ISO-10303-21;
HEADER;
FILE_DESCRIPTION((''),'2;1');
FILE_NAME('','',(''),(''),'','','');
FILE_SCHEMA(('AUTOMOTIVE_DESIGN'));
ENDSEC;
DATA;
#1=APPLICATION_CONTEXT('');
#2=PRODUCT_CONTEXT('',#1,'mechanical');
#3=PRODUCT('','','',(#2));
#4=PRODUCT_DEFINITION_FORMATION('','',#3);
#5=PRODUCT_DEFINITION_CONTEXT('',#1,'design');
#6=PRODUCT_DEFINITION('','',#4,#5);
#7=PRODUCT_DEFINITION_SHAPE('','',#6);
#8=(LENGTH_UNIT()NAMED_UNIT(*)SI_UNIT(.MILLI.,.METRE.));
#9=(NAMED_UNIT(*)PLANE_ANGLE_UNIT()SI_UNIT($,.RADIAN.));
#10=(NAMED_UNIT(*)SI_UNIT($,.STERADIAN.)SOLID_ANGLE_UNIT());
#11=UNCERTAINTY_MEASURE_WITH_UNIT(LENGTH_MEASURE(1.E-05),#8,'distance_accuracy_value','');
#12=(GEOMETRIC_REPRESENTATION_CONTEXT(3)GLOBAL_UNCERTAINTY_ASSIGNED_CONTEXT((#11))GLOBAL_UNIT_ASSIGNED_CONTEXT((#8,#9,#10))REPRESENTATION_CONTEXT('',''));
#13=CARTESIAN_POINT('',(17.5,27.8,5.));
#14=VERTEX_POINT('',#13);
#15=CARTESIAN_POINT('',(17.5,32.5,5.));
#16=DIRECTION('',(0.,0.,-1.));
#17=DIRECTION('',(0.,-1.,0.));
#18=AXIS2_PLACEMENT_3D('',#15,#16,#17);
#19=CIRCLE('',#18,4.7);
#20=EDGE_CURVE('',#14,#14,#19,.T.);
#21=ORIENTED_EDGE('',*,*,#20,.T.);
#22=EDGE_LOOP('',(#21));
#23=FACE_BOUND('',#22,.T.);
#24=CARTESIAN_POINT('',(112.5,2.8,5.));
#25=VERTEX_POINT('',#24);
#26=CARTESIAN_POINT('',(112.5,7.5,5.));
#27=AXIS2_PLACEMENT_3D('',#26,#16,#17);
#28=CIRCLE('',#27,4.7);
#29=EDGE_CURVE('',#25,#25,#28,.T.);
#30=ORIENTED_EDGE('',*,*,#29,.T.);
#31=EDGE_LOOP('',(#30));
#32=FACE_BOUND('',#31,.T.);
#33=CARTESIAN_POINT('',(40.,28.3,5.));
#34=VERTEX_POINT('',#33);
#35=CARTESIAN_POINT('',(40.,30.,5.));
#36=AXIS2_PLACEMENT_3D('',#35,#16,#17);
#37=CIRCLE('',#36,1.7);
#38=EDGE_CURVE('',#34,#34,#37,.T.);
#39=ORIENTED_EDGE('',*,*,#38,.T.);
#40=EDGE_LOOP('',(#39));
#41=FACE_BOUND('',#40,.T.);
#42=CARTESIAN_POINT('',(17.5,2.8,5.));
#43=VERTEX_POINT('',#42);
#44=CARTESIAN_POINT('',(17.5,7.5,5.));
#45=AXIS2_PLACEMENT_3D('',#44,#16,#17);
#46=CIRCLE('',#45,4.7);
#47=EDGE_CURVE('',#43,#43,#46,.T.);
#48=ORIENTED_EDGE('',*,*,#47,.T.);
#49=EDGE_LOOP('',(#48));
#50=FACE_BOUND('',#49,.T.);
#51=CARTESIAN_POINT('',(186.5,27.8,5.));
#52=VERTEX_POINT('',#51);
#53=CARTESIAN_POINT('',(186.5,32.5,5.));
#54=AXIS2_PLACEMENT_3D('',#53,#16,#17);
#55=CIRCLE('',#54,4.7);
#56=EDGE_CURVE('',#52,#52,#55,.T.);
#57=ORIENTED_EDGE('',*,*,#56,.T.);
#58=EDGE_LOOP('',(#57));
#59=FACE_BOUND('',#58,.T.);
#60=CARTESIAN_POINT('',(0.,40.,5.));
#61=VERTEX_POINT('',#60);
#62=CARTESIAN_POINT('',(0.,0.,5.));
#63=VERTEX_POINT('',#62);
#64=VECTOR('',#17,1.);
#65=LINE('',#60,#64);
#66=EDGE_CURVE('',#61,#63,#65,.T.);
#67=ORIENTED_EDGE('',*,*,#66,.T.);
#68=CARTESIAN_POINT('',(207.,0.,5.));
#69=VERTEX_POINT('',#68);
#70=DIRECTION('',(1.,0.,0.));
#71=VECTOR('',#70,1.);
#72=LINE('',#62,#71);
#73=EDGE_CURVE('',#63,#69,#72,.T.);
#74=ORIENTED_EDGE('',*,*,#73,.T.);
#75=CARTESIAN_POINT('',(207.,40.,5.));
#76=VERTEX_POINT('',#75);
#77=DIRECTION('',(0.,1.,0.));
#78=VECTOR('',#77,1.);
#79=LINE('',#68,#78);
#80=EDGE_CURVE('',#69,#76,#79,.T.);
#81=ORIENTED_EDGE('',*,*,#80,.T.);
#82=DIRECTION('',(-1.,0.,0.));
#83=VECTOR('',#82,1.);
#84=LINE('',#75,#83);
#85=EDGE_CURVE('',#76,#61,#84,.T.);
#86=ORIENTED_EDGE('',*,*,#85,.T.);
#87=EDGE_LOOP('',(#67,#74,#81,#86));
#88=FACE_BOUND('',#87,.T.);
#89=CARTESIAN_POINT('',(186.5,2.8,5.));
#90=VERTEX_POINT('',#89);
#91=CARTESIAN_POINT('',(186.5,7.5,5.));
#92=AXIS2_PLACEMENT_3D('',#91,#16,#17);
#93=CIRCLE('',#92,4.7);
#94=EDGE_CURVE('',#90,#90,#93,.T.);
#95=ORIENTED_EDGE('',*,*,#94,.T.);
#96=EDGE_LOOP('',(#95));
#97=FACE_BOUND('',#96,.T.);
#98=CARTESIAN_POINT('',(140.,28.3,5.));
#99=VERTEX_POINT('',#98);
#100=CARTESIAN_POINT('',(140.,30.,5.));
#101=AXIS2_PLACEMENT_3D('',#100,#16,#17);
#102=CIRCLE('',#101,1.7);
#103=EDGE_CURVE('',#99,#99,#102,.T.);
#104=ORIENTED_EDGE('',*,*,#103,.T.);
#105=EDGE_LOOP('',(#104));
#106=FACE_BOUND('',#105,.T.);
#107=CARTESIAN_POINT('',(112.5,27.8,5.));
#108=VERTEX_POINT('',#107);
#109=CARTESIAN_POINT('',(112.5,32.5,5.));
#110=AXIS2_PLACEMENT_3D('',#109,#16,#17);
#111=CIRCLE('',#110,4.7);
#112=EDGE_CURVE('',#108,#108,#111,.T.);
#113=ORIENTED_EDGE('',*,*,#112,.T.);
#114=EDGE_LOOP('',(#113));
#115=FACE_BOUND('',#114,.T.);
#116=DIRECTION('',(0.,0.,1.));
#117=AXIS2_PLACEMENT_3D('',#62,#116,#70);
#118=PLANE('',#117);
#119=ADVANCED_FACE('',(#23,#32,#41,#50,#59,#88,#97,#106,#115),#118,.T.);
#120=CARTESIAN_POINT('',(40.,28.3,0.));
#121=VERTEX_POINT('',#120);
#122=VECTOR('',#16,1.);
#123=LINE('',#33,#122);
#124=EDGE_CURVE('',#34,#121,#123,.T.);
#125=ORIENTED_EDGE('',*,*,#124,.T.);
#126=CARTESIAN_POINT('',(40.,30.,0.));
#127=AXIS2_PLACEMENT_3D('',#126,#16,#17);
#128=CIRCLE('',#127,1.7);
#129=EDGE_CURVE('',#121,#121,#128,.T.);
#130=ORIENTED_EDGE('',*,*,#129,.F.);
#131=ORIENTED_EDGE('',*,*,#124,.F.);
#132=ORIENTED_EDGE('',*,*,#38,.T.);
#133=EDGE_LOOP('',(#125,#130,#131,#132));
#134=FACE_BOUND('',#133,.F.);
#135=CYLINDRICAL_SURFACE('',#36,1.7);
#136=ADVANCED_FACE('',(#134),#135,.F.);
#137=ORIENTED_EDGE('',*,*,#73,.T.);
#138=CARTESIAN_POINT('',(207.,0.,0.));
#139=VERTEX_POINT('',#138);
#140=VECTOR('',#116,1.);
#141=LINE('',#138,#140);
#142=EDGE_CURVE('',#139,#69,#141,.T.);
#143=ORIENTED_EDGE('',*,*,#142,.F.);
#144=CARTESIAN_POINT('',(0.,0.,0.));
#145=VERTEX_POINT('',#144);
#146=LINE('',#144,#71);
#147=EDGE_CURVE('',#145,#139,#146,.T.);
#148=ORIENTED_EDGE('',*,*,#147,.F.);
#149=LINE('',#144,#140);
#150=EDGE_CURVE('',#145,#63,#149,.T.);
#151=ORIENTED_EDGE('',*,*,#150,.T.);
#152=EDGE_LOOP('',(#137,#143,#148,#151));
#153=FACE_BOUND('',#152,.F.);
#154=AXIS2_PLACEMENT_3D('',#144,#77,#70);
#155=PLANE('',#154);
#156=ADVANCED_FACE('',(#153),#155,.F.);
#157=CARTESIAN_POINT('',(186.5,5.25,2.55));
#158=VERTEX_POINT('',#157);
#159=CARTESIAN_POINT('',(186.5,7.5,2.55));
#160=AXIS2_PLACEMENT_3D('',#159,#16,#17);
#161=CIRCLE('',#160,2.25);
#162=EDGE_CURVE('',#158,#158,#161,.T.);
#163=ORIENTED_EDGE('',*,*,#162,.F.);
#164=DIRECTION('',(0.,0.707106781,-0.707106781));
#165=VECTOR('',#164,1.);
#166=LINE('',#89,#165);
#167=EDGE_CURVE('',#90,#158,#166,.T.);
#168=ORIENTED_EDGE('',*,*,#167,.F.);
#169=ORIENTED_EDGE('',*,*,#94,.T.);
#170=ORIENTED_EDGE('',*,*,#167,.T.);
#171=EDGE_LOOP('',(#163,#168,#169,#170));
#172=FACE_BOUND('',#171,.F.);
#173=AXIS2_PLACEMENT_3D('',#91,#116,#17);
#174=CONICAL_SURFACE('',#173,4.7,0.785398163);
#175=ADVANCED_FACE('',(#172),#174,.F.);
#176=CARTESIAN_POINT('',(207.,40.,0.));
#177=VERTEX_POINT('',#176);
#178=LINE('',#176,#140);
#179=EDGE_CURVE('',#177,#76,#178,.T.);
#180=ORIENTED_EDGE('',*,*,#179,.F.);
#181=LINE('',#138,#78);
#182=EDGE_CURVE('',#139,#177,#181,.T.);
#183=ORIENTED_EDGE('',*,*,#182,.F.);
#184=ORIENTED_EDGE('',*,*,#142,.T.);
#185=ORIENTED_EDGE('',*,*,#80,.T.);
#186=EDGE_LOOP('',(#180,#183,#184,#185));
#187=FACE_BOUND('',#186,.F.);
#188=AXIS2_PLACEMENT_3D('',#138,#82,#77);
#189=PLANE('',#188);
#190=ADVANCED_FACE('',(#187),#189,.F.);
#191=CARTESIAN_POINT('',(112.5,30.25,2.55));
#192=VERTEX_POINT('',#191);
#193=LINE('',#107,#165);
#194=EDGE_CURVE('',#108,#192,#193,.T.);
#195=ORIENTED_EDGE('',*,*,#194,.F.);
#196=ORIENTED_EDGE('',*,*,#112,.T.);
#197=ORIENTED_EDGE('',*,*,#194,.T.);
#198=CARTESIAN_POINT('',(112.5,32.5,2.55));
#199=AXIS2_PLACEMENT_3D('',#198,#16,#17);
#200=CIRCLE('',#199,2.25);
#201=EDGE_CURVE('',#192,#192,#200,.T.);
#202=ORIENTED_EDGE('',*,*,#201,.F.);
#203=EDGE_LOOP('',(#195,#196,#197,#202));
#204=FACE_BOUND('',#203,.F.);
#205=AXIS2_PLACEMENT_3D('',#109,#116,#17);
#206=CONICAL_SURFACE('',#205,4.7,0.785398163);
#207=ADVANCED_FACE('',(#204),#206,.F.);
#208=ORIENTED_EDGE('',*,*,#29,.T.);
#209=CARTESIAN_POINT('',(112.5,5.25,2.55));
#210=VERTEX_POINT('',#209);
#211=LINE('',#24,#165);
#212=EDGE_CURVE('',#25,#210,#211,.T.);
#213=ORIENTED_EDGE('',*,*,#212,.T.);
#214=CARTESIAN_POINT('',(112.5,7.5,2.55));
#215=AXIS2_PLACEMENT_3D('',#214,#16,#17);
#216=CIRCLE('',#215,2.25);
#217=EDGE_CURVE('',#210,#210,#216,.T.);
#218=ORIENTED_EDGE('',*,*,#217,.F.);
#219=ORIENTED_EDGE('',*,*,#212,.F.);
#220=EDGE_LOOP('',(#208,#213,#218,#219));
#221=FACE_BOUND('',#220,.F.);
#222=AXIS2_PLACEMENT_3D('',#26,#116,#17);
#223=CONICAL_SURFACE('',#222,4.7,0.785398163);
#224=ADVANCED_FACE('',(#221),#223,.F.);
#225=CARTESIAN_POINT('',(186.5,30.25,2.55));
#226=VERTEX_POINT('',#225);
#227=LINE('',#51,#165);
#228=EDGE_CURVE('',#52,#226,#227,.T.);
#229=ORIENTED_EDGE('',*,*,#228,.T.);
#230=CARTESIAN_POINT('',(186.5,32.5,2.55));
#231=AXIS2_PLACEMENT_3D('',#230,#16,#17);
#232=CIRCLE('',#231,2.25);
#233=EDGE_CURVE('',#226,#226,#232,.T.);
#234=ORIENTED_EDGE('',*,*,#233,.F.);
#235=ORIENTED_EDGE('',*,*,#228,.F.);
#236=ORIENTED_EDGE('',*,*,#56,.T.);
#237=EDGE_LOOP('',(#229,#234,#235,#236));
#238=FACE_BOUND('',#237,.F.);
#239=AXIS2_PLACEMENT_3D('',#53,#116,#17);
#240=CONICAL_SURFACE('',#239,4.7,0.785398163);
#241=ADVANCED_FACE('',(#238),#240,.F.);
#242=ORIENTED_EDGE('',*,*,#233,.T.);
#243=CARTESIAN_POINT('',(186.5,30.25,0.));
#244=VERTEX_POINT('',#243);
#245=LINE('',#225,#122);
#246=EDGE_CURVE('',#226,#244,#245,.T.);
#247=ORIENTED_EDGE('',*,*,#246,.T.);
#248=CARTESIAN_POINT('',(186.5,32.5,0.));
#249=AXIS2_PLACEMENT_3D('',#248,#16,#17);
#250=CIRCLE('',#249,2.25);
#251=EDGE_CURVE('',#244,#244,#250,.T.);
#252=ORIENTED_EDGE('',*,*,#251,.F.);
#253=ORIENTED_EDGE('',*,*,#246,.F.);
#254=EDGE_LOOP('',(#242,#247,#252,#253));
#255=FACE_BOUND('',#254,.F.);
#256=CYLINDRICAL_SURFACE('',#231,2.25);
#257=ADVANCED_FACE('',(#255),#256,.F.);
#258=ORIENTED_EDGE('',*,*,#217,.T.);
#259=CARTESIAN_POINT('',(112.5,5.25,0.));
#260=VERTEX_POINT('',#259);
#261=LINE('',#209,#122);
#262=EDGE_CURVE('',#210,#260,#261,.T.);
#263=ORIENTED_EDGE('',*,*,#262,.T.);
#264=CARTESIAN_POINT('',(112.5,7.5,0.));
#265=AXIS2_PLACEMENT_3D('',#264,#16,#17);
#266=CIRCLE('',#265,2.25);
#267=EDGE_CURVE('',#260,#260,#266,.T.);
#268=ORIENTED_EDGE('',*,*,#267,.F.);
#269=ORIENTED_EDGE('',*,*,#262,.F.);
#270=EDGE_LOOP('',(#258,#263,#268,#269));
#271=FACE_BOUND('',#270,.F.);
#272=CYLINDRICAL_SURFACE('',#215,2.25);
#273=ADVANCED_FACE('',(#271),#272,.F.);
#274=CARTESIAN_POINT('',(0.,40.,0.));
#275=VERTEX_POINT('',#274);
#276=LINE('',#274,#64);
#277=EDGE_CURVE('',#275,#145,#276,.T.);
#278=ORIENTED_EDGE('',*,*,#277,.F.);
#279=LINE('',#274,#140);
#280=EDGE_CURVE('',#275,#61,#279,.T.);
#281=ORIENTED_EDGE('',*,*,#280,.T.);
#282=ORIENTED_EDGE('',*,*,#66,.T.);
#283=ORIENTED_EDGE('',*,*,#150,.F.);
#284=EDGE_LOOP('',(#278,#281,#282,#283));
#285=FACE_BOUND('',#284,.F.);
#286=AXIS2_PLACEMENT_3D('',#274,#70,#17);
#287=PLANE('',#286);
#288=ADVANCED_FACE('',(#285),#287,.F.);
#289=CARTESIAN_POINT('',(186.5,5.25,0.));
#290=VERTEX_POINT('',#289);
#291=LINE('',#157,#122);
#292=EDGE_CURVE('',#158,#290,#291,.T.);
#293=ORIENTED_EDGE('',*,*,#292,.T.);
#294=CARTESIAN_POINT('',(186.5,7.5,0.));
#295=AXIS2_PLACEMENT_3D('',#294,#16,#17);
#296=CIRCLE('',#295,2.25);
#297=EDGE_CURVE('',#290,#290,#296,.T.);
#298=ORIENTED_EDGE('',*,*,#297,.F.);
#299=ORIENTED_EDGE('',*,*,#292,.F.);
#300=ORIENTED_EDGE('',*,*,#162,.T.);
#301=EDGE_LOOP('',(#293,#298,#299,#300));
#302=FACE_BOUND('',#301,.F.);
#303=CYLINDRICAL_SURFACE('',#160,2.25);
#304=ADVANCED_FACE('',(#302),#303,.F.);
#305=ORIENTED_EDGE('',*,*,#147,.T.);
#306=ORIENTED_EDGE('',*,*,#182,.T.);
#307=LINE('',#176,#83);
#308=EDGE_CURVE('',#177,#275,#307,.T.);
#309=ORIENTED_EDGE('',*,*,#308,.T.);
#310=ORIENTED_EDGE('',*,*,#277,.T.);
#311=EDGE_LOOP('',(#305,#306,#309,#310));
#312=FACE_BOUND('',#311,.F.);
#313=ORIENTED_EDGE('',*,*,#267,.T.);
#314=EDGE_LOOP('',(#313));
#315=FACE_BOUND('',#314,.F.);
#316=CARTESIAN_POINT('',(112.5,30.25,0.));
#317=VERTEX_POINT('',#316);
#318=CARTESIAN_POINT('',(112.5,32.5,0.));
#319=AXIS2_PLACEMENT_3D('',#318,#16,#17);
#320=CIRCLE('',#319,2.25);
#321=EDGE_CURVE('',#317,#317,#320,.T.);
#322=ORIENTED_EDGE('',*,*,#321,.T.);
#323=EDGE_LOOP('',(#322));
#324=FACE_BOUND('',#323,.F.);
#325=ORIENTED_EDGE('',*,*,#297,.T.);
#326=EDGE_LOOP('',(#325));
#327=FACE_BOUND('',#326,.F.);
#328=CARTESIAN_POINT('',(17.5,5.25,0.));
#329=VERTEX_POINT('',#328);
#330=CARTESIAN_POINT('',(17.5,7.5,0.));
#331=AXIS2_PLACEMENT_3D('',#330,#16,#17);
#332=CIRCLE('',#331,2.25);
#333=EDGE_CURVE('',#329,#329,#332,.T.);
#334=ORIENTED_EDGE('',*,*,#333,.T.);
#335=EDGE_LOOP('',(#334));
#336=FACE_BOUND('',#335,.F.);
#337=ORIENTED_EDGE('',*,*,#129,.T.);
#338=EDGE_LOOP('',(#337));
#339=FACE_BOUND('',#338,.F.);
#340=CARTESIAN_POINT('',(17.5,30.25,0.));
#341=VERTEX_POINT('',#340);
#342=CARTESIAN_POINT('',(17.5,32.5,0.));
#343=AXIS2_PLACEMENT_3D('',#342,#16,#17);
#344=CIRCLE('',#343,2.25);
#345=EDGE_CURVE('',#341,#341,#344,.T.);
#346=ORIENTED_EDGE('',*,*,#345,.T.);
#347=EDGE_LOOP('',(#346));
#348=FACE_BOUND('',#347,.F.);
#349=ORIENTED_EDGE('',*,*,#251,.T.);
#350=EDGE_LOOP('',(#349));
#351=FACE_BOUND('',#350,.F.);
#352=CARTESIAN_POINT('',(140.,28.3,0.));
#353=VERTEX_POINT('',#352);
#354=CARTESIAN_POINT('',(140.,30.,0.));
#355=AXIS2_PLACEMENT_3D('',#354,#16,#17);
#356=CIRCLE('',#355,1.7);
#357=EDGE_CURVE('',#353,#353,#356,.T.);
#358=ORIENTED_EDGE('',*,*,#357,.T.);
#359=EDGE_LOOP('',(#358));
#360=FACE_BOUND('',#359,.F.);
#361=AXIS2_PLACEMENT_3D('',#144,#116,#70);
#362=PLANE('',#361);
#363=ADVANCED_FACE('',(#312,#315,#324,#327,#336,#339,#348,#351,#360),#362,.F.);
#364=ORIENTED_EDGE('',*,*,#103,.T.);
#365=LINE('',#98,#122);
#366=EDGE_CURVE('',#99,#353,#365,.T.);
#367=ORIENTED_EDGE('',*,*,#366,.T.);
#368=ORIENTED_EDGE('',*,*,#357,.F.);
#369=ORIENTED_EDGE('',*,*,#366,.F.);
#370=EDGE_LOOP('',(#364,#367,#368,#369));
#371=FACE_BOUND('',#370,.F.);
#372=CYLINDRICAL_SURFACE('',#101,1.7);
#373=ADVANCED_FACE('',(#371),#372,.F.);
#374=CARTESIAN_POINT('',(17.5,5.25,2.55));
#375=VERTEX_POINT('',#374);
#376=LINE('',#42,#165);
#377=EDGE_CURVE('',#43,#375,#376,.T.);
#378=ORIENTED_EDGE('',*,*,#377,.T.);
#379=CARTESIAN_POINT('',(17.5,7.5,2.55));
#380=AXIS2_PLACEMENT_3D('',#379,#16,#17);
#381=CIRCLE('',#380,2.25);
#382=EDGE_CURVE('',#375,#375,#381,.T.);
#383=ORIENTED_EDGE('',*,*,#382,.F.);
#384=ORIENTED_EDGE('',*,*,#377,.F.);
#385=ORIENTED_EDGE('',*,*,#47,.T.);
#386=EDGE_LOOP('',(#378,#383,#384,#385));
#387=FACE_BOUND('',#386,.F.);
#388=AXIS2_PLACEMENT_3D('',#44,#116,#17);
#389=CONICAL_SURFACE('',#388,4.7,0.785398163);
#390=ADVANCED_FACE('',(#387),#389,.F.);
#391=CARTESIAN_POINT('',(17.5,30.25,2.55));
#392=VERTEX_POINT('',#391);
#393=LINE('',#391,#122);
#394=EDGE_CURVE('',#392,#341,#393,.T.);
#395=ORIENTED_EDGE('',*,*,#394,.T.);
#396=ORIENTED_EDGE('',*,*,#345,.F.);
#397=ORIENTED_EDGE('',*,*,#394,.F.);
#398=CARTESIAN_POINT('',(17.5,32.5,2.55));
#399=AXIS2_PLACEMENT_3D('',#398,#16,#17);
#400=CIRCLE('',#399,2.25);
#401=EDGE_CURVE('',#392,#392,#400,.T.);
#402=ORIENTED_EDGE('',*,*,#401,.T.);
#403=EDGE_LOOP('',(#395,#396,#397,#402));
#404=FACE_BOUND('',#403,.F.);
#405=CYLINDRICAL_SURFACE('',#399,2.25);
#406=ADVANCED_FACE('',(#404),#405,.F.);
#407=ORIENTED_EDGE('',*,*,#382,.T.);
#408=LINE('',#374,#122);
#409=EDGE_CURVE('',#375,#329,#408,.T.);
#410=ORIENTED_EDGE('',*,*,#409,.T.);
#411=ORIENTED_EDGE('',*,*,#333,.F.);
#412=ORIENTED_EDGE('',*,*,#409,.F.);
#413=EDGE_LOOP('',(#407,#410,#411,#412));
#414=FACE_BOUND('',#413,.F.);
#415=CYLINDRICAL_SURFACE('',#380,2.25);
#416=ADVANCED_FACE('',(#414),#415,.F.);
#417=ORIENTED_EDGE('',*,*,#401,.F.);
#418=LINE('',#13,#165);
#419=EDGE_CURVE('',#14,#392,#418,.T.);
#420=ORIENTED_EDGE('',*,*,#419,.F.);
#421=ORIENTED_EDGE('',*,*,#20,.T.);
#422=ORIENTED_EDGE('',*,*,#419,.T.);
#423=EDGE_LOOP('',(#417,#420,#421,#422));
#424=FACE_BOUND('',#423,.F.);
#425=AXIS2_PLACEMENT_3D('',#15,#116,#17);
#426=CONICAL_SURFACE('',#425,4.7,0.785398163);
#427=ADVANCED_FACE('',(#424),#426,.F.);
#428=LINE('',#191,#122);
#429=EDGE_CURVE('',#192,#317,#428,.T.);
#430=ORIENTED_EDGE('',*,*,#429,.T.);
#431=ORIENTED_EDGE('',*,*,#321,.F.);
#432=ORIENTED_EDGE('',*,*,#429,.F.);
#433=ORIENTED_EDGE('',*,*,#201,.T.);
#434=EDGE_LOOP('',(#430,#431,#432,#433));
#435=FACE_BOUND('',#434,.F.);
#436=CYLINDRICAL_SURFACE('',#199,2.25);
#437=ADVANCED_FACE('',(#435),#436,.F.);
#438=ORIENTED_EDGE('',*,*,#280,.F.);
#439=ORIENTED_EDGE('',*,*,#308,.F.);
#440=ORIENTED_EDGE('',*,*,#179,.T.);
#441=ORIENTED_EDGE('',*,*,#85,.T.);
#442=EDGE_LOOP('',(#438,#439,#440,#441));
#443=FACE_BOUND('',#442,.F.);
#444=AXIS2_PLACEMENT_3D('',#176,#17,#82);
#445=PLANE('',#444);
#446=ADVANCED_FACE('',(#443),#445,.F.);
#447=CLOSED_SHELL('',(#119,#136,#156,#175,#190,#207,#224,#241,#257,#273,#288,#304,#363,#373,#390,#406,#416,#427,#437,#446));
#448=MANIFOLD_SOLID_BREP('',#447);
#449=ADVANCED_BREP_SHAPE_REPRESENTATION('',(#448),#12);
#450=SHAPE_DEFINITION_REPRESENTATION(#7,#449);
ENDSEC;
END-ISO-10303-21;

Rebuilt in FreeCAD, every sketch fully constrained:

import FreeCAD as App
import Part
import Sketcher
from FreeCAD import Vector
Q = App.Units.Quantity


def add_polygon(sketch, points):
    """Adds a closed chain of lines whose ends are joined by coincident constraints."""
    first, n = sketch.GeometryCount, len(points)
    for a, b in zip(points, points[1:] + points[:1]):
        sketch.addGeometry(Part.LineSegment(App.Vector(*a, 0), App.Vector(*b, 0)), False)
    for i in range(n):
        sketch.addConstraint(Sketcher.Constraint("Coincident", first + i, 2, first + (i + 1) % n, 1))

doc = App.newDocument("Part")
body = doc.addObject("PartDesign::Body", "Body")

# Sketch on XY plane
sketch1 = body.newObject("Sketcher::SketchObject", "Sketch")
sketch1.AttachmentSupport = (doc.getObject("XY_Plane"), [""])
sketch1.MapMode = "FlatFace"
add_polygon(sketch1, [(0, 40), (0, 0), (207, 0), (207, 40)])  # lines 0-3
sketch1.addConstraint([
    Sketcher.Constraint("Vertical", 0),
    Sketcher.Constraint("Horizontal", 1),
    Sketcher.Constraint("Vertical", 2),
    Sketcher.Constraint("Horizontal", 3),
    Sketcher.Constraint("Coincident", 0, 2, -1, 1),
    Sketcher.Constraint("DistanceX", 1, 1, 1, 2, Q("207 mm")),
    Sketcher.Constraint("DistanceY", 0, 2, 0, 1, Q("40 mm")),
])
pad1 = body.newObject("PartDesign::Pad", "Pad")
pad1.Profile = sketch1
pad1.Length = 5

# Sketch on XY plane
sketch2 = body.newObject("Sketcher::SketchObject", "Sketch001")
sketch2.AttachmentSupport = (doc.getObject("XY_Plane"), [""])
sketch2.MapMode = "FlatFace"
sketch2.AttachmentOffset = App.Placement(Vector(0, 0, 5), App.Rotation())
sketch2.addGeometry([
    Part.Circle(Vector(17.5, 32.5, 0), Vector(0, 0, 1), 2.2),  # 0
    Part.Circle(Vector(17.5, 7.5, 0), Vector(0, 0, 1), 2.2),  # 1
    Part.Circle(Vector(112.5, 32.5, 0), Vector(0, 0, 1), 2.2),  # 2
    Part.Circle(Vector(112.5, 7.5, 0), Vector(0, 0, 1), 2.2),  # 3
    Part.Circle(Vector(186.5, 32.5, 0), Vector(0, 0, 1), 2.2),  # 4
    Part.Circle(Vector(186.5, 7.5, 0), Vector(0, 0, 1), 2.2),  # 5
], False)
sketch2.addConstraint([
    Sketcher.Constraint("Equal", 0, 1),
    Sketcher.Constraint("Equal", 1, 2),
    Sketcher.Constraint("Equal", 2, 3),
    Sketcher.Constraint("Equal", 3, 4),
    Sketcher.Constraint("Equal", 4, 5),
    Sketcher.Constraint("Horizontal", 0, 3, 2, 3),
    Sketcher.Constraint("Horizontal", 1, 3, 3, 3),
    Sketcher.Constraint("Horizontal", 2, 3, 4, 3),
    Sketcher.Constraint("Horizontal", 3, 3, 5, 3),
    Sketcher.Constraint("Vertical", 0, 3, 1, 3),
    Sketcher.Constraint("Vertical", 2, 3, 3, 3),
    Sketcher.Constraint("Vertical", 4, 3, 5, 3),
    Sketcher.Constraint("Diameter", 0, Q("4.5 mm")),
    Sketcher.Constraint("DistanceY", 1, 3, 0, 3, Q("25 mm")),
    Sketcher.Constraint("DistanceX", 0, 3, 2, 3, Q("95 mm")),
    Sketcher.Constraint("DistanceX", 2, 3, 4, 3, Q("74 mm")),
    Sketcher.Constraint("DistanceX", -1, 1, 0, 3, Q("17.5 mm")),
    Sketcher.Constraint("DistanceY", -1, 1, 0, 3, Q("32.5 mm")),
])
doc.recompute()
hole = body.newObject("PartDesign::Hole", "Hole")
hole.Profile = sketch2
hole.ThreadType = "None"
hole.Diameter = 4.5
hole.DepthType = "ThroughAll"
hole.HoleCutType = "Countersink"
hole.HoleCutDiameter = 9.4
hole.HoleCutCountersinkAngle = 90

# Sketch on XY plane
sketch3 = body.newObject("Sketcher::SketchObject", "Sketch002")
sketch3.AttachmentSupport = (doc.getObject("XY_Plane"), [""])
sketch3.MapMode = "FlatFace"
sketch3.AttachmentOffset = App.Placement(Vector(0, 0, 5), App.Rotation())
sketch3.addGeometry([
    Part.Circle(Vector(40, 30, 0), Vector(0, 0, 1), 1.7),
    Part.Circle(Vector(140, 30, 0), Vector(0, 0, 1), 1.7),
], False)
sketch3.addConstraint([
    Sketcher.Constraint("Equal", 0, 1),
    Sketcher.Constraint("Horizontal", 0, 3, 1, 3),
    Sketcher.Constraint("Diameter", 0, Q("3.4 mm")),
    Sketcher.Constraint("DistanceX", -1, 1, 0, 3, Q("40 mm")),
    Sketcher.Constraint("DistanceY", -1, 1, 0, 3, Q("30 mm")),
    Sketcher.Constraint("DistanceX", -1, 1, 1, 3, Q("140 mm")),
])
doc.recompute()
hole2 = body.newObject("PartDesign::Hole", "Hole001")
hole2.Profile = sketch3
hole2.ThreadType = "None"
hole2.Diameter = 3.4
hole2.DepthType = "ThroughAll"

doc.recompute()
